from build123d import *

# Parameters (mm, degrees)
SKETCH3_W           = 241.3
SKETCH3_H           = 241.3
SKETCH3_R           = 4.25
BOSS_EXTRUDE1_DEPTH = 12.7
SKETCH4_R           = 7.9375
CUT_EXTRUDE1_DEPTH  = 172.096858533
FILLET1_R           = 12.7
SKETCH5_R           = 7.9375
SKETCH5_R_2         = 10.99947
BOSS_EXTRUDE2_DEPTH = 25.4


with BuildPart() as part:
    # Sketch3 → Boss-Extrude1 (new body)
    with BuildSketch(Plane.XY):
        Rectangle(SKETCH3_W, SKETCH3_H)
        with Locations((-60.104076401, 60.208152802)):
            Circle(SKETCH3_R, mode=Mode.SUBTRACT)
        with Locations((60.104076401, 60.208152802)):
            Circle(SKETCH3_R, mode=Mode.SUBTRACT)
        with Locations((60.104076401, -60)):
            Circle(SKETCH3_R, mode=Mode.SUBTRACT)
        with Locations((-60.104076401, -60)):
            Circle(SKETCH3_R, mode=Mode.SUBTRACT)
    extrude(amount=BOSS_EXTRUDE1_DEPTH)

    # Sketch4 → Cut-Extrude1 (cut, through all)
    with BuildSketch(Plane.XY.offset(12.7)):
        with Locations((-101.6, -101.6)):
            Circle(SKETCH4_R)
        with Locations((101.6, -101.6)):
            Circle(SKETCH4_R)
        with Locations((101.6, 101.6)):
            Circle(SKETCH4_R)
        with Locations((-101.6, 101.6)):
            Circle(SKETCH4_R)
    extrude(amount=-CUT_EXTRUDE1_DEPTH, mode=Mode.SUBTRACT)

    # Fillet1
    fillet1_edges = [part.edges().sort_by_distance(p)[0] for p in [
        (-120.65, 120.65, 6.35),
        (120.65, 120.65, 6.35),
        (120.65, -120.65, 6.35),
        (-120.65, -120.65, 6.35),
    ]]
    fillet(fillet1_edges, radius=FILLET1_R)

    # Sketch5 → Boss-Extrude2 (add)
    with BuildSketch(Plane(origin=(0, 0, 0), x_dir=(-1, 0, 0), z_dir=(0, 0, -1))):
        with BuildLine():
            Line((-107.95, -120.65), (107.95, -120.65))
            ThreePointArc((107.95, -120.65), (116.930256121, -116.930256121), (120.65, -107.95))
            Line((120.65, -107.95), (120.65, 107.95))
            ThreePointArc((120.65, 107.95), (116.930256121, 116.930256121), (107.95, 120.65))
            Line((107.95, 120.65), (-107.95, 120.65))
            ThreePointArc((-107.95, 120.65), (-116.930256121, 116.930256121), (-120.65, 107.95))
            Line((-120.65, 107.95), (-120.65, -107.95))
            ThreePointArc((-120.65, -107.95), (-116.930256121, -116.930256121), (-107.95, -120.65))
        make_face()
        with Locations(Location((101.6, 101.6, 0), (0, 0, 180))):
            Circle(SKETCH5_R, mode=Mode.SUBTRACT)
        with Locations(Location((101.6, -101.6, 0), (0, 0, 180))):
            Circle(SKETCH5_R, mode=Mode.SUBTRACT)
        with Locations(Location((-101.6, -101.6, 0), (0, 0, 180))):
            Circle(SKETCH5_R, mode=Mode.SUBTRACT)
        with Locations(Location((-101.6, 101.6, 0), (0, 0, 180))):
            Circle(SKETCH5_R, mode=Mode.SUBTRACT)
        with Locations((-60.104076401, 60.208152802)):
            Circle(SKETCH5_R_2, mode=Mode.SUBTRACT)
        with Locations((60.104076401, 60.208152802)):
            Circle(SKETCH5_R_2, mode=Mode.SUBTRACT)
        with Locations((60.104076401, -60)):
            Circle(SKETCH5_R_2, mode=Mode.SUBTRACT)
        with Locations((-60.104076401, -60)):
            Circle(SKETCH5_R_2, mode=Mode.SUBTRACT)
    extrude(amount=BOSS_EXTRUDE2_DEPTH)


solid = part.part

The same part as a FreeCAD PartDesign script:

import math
import FreeCAD as App
import Part
import Sketcher
Q = App.Units.Quantity


def edges_at(feature, points):
    """Names of the edges that pass closest to the given points."""
    edges = feature.Shape.Edges
    near = lambda p: min(range(len(edges)), key=lambda i: edges[i].distToShape(Part.Vertex(*p))[0])
    return sorted({f"Edge{near(p) + 1}" for p in points})


def add_polygon(sketch, points):
    """Adds a closed chain of lines whose ends are joined by coincident constraints."""
    first, n = sketch.GeometryCount, len(points)
    for a, b in zip(points, points[1:] + points[:1]):
        sketch.addGeometry(Part.LineSegment(App.Vector(*a, 0), App.Vector(*b, 0)), False)
    for i in range(n):
        sketch.addConstraint(Sketcher.Constraint("Coincident", first + i, 2, first + (i + 1) % n, 1))

doc = App.newDocument("Part")
body = doc.addObject("PartDesign::Body", "Body")

# Sketch on XY plane
sketch1 = body.newObject("Sketcher::SketchObject", "Sketch")
sketch1.AttachmentSupport = (doc.getObject("XY_Plane"), [""])
sketch1.MapMode = "FlatFace"
add_polygon(sketch1, [(-120.7, 120.7), (-120.7, -120.7), (120.7, -120.7), (120.7, 120.7)])  # lines 0-3
sketch1.addGeometry(Part.Circle(App.Vector(-60.1, -60, 0), App.Vector(0, 0, 1), 4.2), False)  # 4
sketch1.addGeometry(Part.Circle(App.Vector(60.1, -60, 0), App.Vector(0, 0, 1), 4.2), False)  # 5
sketch1.addGeometry(Part.Circle(App.Vector(-60.1, 60.2, 0), App.Vector(0, 0, 1), 4.2), False)  # 6
sketch1.addGeometry(Part.Circle(App.Vector(60.1, 60.2, 0), App.Vector(0, 0, 1), 4.2), False)  # 7
sketch1.addConstraint([
    Sketcher.Constraint("Vertical", 0),
    Sketcher.Constraint("Horizontal", 1),
    Sketcher.Constraint("Vertical", 2),
    Sketcher.Constraint("Horizontal", 3),
    Sketcher.Constraint("Equal", 4, 5),
    Sketcher.Constraint("Equal", 5, 6),
    Sketcher.Constraint("Equal", 6, 7),
    Sketcher.Constraint("Symmetric", 0, 2, 2, 2, -1, 1),
    Sketcher.Constraint("Symmetric", 4, 3, 5, 3, -2),
    Sketcher.Constraint("Symmetric", 6, 3, 7, 3, -2),
    Sketcher.Constraint("Vertical", 4, 3, 6, 3),
    Sketcher.Constraint("Equal", 3, 0),
    Sketcher.Constraint("DistanceX", 1, 1, 1, 2, Q("9.5 in")),
    Sketcher.Constraint("Diameter", 4, 8.5),
    Sketcher.Constraint("DistanceY", 4, 3, -1, 1, 60.0),
    Sketcher.Constraint("DistanceX", 4, 3, -1, 1, 60.104076),
    Sketcher.Constraint("DistanceY", -1, 1, 6, 3, 60.208153),
])
pad1 = body.newObject("PartDesign::Pad", "Pad")
pad1.Profile = sketch1
pad1.Length = Q("0.5 in")

# Sketch on XY plane
sketch2 = body.newObject("Sketcher::SketchObject", "Sketch001")
sketch2.AttachmentSupport = (doc.getObject("XY_Plane"), [""])
sketch2.MapMode = "FlatFace"
sketch2.AttachmentOffset = App.Placement(App.Vector(0, 0, 0.5 * 25.4), App.Rotation())
sketch2.addGeometry([
    Part.Circle(App.Vector(-102, -102, 0), App.Vector(0, 0, 1), 8),
    Part.Circle(App.Vector(102, -102, 0), App.Vector(0, 0, 1), 8),
    Part.Circle(App.Vector(102, 102, 0), App.Vector(0, 0, 1), 8),
    Part.Circle(App.Vector(-102, 102, 0), App.Vector(0, 0, 1), 8),
], False)
sketch2.addConstraint([
    Sketcher.Constraint("Equal", 0, 1),
    Sketcher.Constraint("Equal", 1, 2),
    Sketcher.Constraint("Equal", 2, 3),
    Sketcher.Constraint("Symmetric", 0, 3, 2, 3, -1, 1),
    Sketcher.Constraint("Symmetric", 1, 3, 3, 3, -1, 1),
    Sketcher.Constraint("Symmetric", 0, 3, 1, 3, -2),
    Sketcher.Constraint("Diameter", 0, Q("0.625 in")),
    Sketcher.Constraint("DistanceX", 0, 3, -1, 1, Q("4 in")),
    Sketcher.Constraint("DistanceY", 0, 3, -1, 1, Q("4 in")),
])
pocket1 = body.newObject("PartDesign::Pocket", "Pocket")
pocket1.Profile = sketch2
pocket1.Type = "ThroughAll"
doc.recompute()

fillet = body.newObject("PartDesign::Fillet", "Fillet")
fillet.Base = (pocket1, edges_at(pocket1, [
    (-120.65, 120.65, 6.35),
    (120.65, 120.65, 6.35),
    (120.65, -120.65, 6.35),
    (-120.65, -120.65, 6.35),
]))
fillet.Radius = Q("0.5 in")

# Sketch on XY plane
sketch3 = body.newObject("Sketcher::SketchObject", "Sketch002")
sketch3.AttachmentSupport = (doc.getObject("XY_Plane"), [""])
sketch3.MapMode = "FlatFace"
sketch3.addGeometry([
    Part.LineSegment(App.Vector(108, -121, 0), App.Vector(-108, -121, 0)),  # 0
    Part.ArcOfCircle(Part.Circle(App.Vector(-108, -108, 0), App.Vector(0, 0, 1), 13), math.radians(180), math.radians(270)),  # 1
    Part.LineSegment(App.Vector(-121, -108, 0), App.Vector(-121, 108, 0)),  # 2
    Part.ArcOfCircle(Part.Circle(App.Vector(-108, 108, 0), App.Vector(0, 0, 1), 13), math.radians(90), math.radians(180)),  # 3
    Part.LineSegment(App.Vector(-108, 121, 0), App.Vector(108, 121, 0)),  # 4
    Part.ArcOfCircle(Part.Circle(App.Vector(108, 108, 0), App.Vector(0, 0, 1), 13), math.radians(0), math.radians(90)),  # 5
    Part.LineSegment(App.Vector(121, 108, 0), App.Vector(121, -108, 0)),  # 6
    Part.ArcOfCircle(Part.Circle(App.Vector(108, -108, 0), App.Vector(0, 0, 1), 13), math.radians(-90), math.radians(0)),  # 7
    Part.Circle(App.Vector(102, -102, 0), App.Vector(0, 0, 1), 8),  # 8
    Part.Circle(App.Vector(60, -60, 0), App.Vector(0, 0, 1), 11),  # 9
    Part.Circle(App.Vector(-102, -102, 0), App.Vector(0, 0, 1), 8),  # 10
    Part.Circle(App.Vector(-60, -60, 0), App.Vector(0, 0, 1), 11),  # 11
    Part.Circle(App.Vector(60, 60, 0), App.Vector(0, 0, 1), 11),  # 12
    Part.Circle(App.Vector(102, 102, 0), App.Vector(0, 0, 1), 8),  # 13
    Part.Circle(App.Vector(-60, 60, 0), App.Vector(0, 0, 1), 11),  # 14
    Part.Circle(App.Vector(-102, 102, 0), App.Vector(0, 0, 1), 8),  # 15
], False)
sketch3.addConstraint([
    Sketcher.Constraint("Tangent", 0, 2, 1, 2),
    Sketcher.Constraint("Tangent", 1, 1, 2, 1),
    Sketcher.Constraint("Tangent", 2, 2, 3, 2),
    Sketcher.Constraint("Tangent", 3, 1, 4, 1),
    Sketcher.Constraint("Tangent", 4, 2, 5, 2),
    Sketcher.Constraint("Tangent", 5, 1, 6, 1),
    Sketcher.Constraint("Tangent", 6, 2, 7, 2),
    Sketcher.Constraint("Tangent", 7, 1, 0, 1),
    Sketcher.Constraint("Horizontal", 0),
    Sketcher.Constraint("Vertical", 2),
    Sketcher.Constraint("Horizontal", 4),
    Sketcher.Constraint("Vertical", 6),
    Sketcher.Constraint("Equal", 1, 3),
    Sketcher.Constraint("Equal", 3, 5),
    Sketcher.Constraint("Equal", 5, 7),
    Sketcher.Constraint("Equal", 8, 10),
    Sketcher.Constraint("Equal", 9, 11),
    Sketcher.Constraint("Equal", 11, 12),
    Sketcher.Constraint("Equal", 10, 13),
    Sketcher.Constraint("Equal", 12, 14),
    Sketcher.Constraint("Equal", 13, 15),
    Sketcher.Constraint("Symmetric", 1, 3, 5, 3, -1, 1),
    Sketcher.Constraint("Symmetric", 10, 3, 13, 3, -1, 1),
    Sketcher.Constraint("Symmetric", 8, 3, 15, 3, -1, 1),
    Sketcher.Constraint("Symmetric", 8, 3, 10, 3, -2),
    Sketcher.Constraint("Symmetric", 9, 3, 11, 3, -2),
    Sketcher.Constraint("Symmetric", 12, 3, 14, 3, -2),
    Sketcher.Constraint("Vertical", 9, 3, 12, 3),
    Sketcher.Constraint("Equal", 4, 2),
    Sketcher.Constraint("Radius", 1, Q("0.5 in")),
    Sketcher.Constraint("Diameter", 8, Q("0.625 in")),
    Sketcher.Constraint("DistanceX", 0, 2, 0, 1, Q("8.5 in")),
    Sketcher.Constraint("DistanceX", -1, 1, 8, 3, Q("4 in")),
    Sketcher.Constraint("DistanceY", 8, 3, -1, 1, Q("4 in")),
    Sketcher.Constraint("Diameter", 9, Q("0.8661 in")),
    Sketcher.Constraint("DistanceY", 9, 3, -1, 1, 60.0),
    Sketcher.Constraint("DistanceX", -1, 1, 9, 3, 60.104076),
    Sketcher.Constraint("DistanceY", -1, 1, 12, 3, 60.208153),
])
pad2 = body.newObject("PartDesign::Pad", "Pad001")
pad2.Profile = sketch3
pad2.Length = Q("1 in")
pad2.Reversed = True

doc.recompute()
